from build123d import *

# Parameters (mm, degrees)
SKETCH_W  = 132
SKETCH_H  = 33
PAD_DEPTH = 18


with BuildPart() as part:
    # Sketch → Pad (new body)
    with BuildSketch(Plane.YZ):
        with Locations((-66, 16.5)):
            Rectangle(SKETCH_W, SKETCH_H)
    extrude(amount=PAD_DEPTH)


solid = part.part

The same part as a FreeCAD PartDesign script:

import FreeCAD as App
import Part
import Sketcher

doc = App.newDocument("Part")
body = doc.addObject("PartDesign::Body", "Body")

# Sketch on YZ plane
sketch1 = body.newObject("Sketcher::SketchObject", "Sketch")
sketch1.AttachmentSupport = (doc.getObject("YZ_Plane"), [""])
sketch1.MapMode = "FlatFace"
sketch1.addGeometry(Part.LineSegment(App.Vector(-132, 33, 0), App.Vector(-132, 0, 0)), False)
sketch1.addGeometry(Part.LineSegment(App.Vector(-132, 0, 0), App.Vector(0, 0, 0)), False)
sketch1.addGeometry(Part.LineSegment(App.Vector(0, 0, 0), App.Vector(0, 33, 0)), False)
sketch1.addGeometry(Part.LineSegment(App.Vector(0, 33, 0), App.Vector(-132, 33, 0)), False)
sketch1.addConstraint(Sketcher.Constraint("Coincident", 0, 2, 1, 1))
sketch1.addConstraint(Sketcher.Constraint("Coincident", 1, 2, 2, 1))
sketch1.addConstraint(Sketcher.Constraint("Coincident", 2, 2, 3, 1))
sketch1.addConstraint(Sketcher.Constraint("Coincident", 3, 2, 0, 1))
sketch1.addConstraint(Sketcher.Constraint("Vertical", 0))
sketch1.addConstraint(Sketcher.Constraint("Horizontal", 1))
sketch1.addConstraint(Sketcher.Constraint("Vertical", 2))
sketch1.addConstraint(Sketcher.Constraint("Horizontal", 3))
sketch1.addConstraint(Sketcher.Constraint("Coincident", 1, 2, -1, 1))
sketch1.addConstraint(Sketcher.Constraint("DistanceX", 1, 1, 1, 2, 132.0))
sketch1.addConstraint(Sketcher.Constraint("DistanceY", 0, 2, 0, 1, 33.0))
pad1 = body.newObject("PartDesign::Pad", "Pad")
pad1.Profile = sketch1
pad1.Length = 18

doc.recompute()
